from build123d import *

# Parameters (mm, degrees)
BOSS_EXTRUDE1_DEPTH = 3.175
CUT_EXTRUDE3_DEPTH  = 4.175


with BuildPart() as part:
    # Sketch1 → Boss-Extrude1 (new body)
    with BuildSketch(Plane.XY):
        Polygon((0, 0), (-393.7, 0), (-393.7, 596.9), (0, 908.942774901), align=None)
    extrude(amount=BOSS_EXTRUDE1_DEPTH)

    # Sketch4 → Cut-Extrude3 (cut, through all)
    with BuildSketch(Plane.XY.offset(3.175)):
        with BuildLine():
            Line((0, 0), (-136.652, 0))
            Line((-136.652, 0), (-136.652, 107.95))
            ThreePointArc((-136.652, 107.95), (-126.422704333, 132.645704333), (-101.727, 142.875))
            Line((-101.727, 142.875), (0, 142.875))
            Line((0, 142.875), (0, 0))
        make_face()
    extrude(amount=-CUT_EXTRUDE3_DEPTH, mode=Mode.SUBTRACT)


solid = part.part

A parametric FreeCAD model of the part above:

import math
import FreeCAD as App
import Part
import Sketcher

V = App.Vector
Q = App.Units.Quantity

doc = App.newDocument("Part")
body = doc.addObject("PartDesign::Body", "Body")

# Sketch on XY plane
sketch1 = doc.addObject("Sketcher::SketchObject", "Sketch")
body.addObject(sketch1)
sketch1.AttachmentSupport = (doc.XY_Plane, [""])
sketch1.MapMode = "FlatFace"
sketch1.addGeometry([
    Part.LineSegment(V(-393.7, 0, 0), V(0, 0, 0)),
    Part.LineSegment(V(0, 0, 0), V(0, 908.942775, 0)),
    Part.LineSegment(V(0, 908.942775, 0), V(-393.7, 596.9, 0)),
    Part.LineSegment(V(-393.7, 596.9, 0), V(-393.7, 0, 0)),
], False)
sketch1.addConstraint([
    Sketcher.Constraint("Coincident", 0, 2, 1, 1),
    Sketcher.Constraint("Coincident", 1, 2, 2, 1),
    Sketcher.Constraint("Coincident", 2, 2, 3, 1),
    Sketcher.Constraint("Coincident", 3, 2, 0, 1),
    Sketcher.Constraint("Horizontal", 0),
    Sketcher.Constraint("Vertical", 1),
    Sketcher.Constraint("Vertical", 3),
    Sketcher.Constraint("Coincident", 0, 2, -1, 1),
    Sketcher.Constraint("DistanceX", 0, 1, 0, 2, Q("15.5 in")),
    Sketcher.Constraint("DistanceY", 3, 2, 3, 1, Q("23.5 in")),
    Sketcher.Constraint("Angle", 2, Q("-141.6 deg")),
])
pad1 = doc.addObject("PartDesign::Pad", "Pad")
body.addObject(pad1)
pad1.Profile = sketch1
pad1.Length = Q("0.125 in")

# Sketch on XY plane
sketch2 = doc.addObject("Sketcher::SketchObject", "Sketch001")
body.addObject(sketch2)
sketch2.AttachmentSupport = (doc.XY_Plane, [""])
sketch2.MapMode = "FlatFace"
sketch2.AttachmentOffset = App.Placement(V(0, 0, 0.125 * 25.4), App.Rotation())
sketch2.addGeometry([
    Part.LineSegment(V(-136.652, 0, 0), V(0, 0, 0)),  # 0
    Part.LineSegment(V(0, 0, 0), V(0, 142.875, 0)),  # 1
    Part.LineSegment(V(0, 142.875, 0), V(-101.727, 142.875, 0)),  # 2
    Part.ArcOfCircle(Part.Circle(V(-101.727, 107.95, 0), V(0, 0, 1), 34.925), math.radians(90), math.radians(180)),  # 3
    Part.LineSegment(V(-136.652, 107.95, 0), V(-136.652, 0, 0)),  # 4
], False)
sketch2.addConstraint([
    Sketcher.Constraint("Coincident", 0, 2, 1, 1),
    Sketcher.Constraint("Coincident", 1, 2, 2, 1),
    Sketcher.Constraint("Tangent", 2, 2, 3, 1),
    Sketcher.Constraint("Tangent", 3, 2, 4, 1),
    Sketcher.Constraint("Coincident", 4, 2, 0, 1),
    Sketcher.Constraint("Horizontal", 0),
    Sketcher.Constraint("Vertical", 1),
    Sketcher.Constraint("Horizontal", 2),
    Sketcher.Constraint("Vertical", 4),
    Sketcher.Constraint("Coincident", 0, 2, -1, 1),
    Sketcher.Constraint("Radius", 3, Q("1.375 in")),
    Sketcher.Constraint("DistanceX", 0, 1, 0, 2, Q("5.38 in")),
    Sketcher.Constraint("DistanceY", 4, 2, 4, 1, Q("4.25 in")),
])
pocket1 = doc.addObject("PartDesign::Pocket", "Pocket")
body.addObject(pocket1)
pocket1.Profile = sketch2
pocket1.Type = "ThroughAll"

doc.recompute()
